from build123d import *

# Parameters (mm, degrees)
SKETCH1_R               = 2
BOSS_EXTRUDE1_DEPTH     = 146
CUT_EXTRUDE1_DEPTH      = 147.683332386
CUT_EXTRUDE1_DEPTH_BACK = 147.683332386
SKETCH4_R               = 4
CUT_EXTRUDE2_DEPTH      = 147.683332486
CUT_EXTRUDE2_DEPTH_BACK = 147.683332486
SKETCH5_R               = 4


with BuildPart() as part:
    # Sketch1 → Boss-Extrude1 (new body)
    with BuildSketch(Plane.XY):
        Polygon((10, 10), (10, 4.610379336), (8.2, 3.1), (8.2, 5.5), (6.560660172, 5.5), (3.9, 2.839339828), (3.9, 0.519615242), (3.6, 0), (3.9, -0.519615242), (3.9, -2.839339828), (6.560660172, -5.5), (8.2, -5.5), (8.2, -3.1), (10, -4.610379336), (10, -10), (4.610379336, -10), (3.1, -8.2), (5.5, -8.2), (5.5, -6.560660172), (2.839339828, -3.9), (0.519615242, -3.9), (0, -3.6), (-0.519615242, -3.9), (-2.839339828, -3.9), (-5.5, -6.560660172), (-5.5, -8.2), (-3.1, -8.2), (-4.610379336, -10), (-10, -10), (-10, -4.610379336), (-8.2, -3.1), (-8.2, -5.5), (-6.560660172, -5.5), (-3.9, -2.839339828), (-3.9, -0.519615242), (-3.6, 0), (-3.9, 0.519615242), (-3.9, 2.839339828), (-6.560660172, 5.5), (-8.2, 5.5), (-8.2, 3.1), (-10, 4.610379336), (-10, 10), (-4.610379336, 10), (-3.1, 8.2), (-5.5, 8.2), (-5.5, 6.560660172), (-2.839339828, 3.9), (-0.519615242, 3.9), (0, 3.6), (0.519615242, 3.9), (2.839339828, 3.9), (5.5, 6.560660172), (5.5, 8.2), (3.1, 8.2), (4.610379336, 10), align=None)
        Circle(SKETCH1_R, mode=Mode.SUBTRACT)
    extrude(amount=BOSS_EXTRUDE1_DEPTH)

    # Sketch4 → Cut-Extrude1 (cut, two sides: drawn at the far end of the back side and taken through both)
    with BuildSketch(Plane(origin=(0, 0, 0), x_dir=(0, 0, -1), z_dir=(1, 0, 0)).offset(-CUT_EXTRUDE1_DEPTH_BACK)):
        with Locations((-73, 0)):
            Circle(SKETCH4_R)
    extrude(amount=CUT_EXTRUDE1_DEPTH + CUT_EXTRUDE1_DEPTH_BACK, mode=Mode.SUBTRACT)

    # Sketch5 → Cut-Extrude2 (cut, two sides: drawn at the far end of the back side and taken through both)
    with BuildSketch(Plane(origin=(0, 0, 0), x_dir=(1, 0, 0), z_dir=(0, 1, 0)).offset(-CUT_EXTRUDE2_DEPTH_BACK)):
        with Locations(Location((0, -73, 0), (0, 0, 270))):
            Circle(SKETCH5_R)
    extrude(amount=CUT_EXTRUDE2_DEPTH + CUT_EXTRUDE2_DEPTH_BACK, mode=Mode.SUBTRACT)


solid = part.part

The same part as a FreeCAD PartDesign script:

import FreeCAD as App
import Part
import Sketcher
Q = App.Units.Quantity

doc = App.newDocument("Part")
params = doc.addObject("Spreadsheet::Sheet", "Params")
for row, (alias, value) in enumerate([
    ("sketch1_diameter", "4 mm"),
    ("sketch1_width", "2.4 mm"),
    ("sketch1_length", "0.6 mm"),
    ("pad1_length", "146 mm"),
    ("sketch2_diameter", "8 mm"),
    ("sketch3_diameter", "8 mm"),
], start=1):
    params.set(f"A{row}", alias)
    params.set(f"B{row}", "=" + value)
    params.setAlias(f"B{row}", alias)

body = doc.addObject("PartDesign::Body", "Body")

# Sketch on XY plane
sketch1 = doc.addObject("Sketcher::SketchObject", "Sketch")
body.addObject(sketch1)
sketch1.AttachmentSupport = (doc.XY_Plane, [""])
sketch1.MapMode = "FlatFace"
sketch1.addGeometry(Part.LineSegment(App.Vector(10, 4.6, 0), App.Vector(10, 10, 0)), False)
sketch1.addGeometry(Part.LineSegment(App.Vector(10, 10, 0), App.Vector(4.6, 10, 0)), False)
sketch1.addGeometry(Part.LineSegment(App.Vector(4.6, 10, 0), App.Vector(3.1, 8.2, 0)), False)
sketch1.addGeometry(Part.LineSegment(App.Vector(3.1, 8.2, 0), App.Vector(5.5, 8.2, 0)), False)
sketch1.addGeometry(Part.LineSegment(App.Vector(5.5, 8.2, 0), App.Vector(5.5, 6.6, 0)), False)
sketch1.addGeometry(Part.LineSegment(App.Vector(5.5, 6.6, 0), App.Vector(2.8, 3.9, 0)), False)
sketch1.addGeometry(Part.LineSegment(App.Vector(2.8, 3.9, 0), App.Vector(0.5, 3.9, 0)), False)
sketch1.addGeometry(Part.LineSegment(App.Vector(0.5, 3.9, 0), App.Vector(0, 3.6, 0)), False)
sketch1.addGeometry(Part.LineSegment(App.Vector(0, 3.6, 0), App.Vector(-0.5, 3.9, 0)), False)
sketch1.addGeometry(Part.LineSegment(App.Vector(-0.5, 3.9, 0), App.Vector(-2.8, 3.9, 0)), False)
sketch1.addGeometry(Part.LineSegment(App.Vector(-2.8, 3.9, 0), App.Vector(-5.5, 6.6, 0)), False)
sketch1.addGeometry(Part.LineSegment(App.Vector(-5.5, 6.6, 0), App.Vector(-5.5, 8.2, 0)), False)
sketch1.addGeometry(Part.LineSegment(App.Vector(-5.5, 8.2, 0), App.Vector(-3.1, 8.2, 0)), False)
sketch1.addGeometry(Part.LineSegment(App.Vector(-3.1, 8.2, 0), App.Vector(-4.6, 10, 0)), False)
sketch1.addGeometry(Part.LineSegment(App.Vector(-4.6, 10, 0), App.Vector(-10, 10, 0)), False)
sketch1.addGeometry(Part.LineSegment(App.Vector(-10, 10, 0), App.Vector(-10, 4.6, 0)), False)
sketch1.addGeometry(Part.LineSegment(App.Vector(-10, 4.6, 0), App.Vector(-8.2, 3.1, 0)), False)
sketch1.addGeometry(Part.LineSegment(App.Vector(-8.2, 3.1, 0), App.Vector(-8.2, 5.5, 0)), False)
sketch1.addGeometry(Part.LineSegment(App.Vector(-8.2, 5.5, 0), App.Vector(-6.6, 5.5, 0)), False)
sketch1.addGeometry(Part.LineSegment(App.Vector(-6.6, 5.5, 0), App.Vector(-3.9, 2.8, 0)), False)
sketch1.addGeometry(Part.LineSegment(App.Vector(-3.9, 2.8, 0), App.Vector(-3.9, 0.5, 0)), False)
sketch1.addGeometry(Part.LineSegment(App.Vector(-3.9, 0.5, 0), App.Vector(-3.6, 0, 0)), False)
sketch1.addGeometry(Part.LineSegment(App.Vector(-3.6, 0, 0), App.Vector(-3.9, -0.5, 0)), False)
sketch1.addGeometry(Part.LineSegment(App.Vector(-3.9, -0.5, 0), App.Vector(-3.9, -2.8, 0)), False)
sketch1.addGeometry(Part.LineSegment(App.Vector(-3.9, -2.8, 0), App.Vector(-6.6, -5.5, 0)), False)
sketch1.addGeometry(Part.LineSegment(App.Vector(-6.6, -5.5, 0), App.Vector(-8.2, -5.5, 0)), False)
sketch1.addGeometry(Part.LineSegment(App.Vector(-8.2, -5.5, 0), App.Vector(-8.2, -3.1, 0)), False)
sketch1.addGeometry(Part.LineSegment(App.Vector(-8.2, -3.1, 0), App.Vector(-10, -4.6, 0)), False)
sketch1.addGeometry(Part.LineSegment(App.Vector(-10, -4.6, 0), App.Vector(-10, -10, 0)), False)
sketch1.addGeometry(Part.LineSegment(App.Vector(-10, -10, 0), App.Vector(-4.6, -10, 0)), False)
sketch1.addGeometry(Part.LineSegment(App.Vector(-4.6, -10, 0), App.Vector(-3.1, -8.2, 0)), False)
sketch1.addGeometry(Part.LineSegment(App.Vector(-3.1, -8.2, 0), App.Vector(-5.5, -8.2, 0)), False)
sketch1.addGeometry(Part.LineSegment(App.Vector(-5.5, -8.2, 0), App.Vector(-5.5, -6.6, 0)), False)
sketch1.addGeometry(Part.LineSegment(App.Vector(-5.5, -6.6, 0), App.Vector(-2.8, -3.9, 0)), False)
sketch1.addGeometry(Part.LineSegment(App.Vector(-2.8, -3.9, 0), App.Vector(-0.5, -3.9, 0)), False)
sketch1.addGeometry(Part.LineSegment(App.Vector(-0.5, -3.9, 0), App.Vector(0, -3.6, 0)), False)
sketch1.addGeometry(Part.LineSegment(App.Vector(0, -3.6, 0), App.Vector(0.5, -3.9, 0)), False)
sketch1.addGeometry(Part.LineSegment(App.Vector(0.5, -3.9, 0), App.Vector(2.8, -3.9, 0)), False)
sketch1.addGeometry(Part.LineSegment(App.Vector(2.8, -3.9, 0), App.Vector(5.5, -6.6, 0)), False)
sketch1.addGeometry(Part.LineSegment(App.Vector(5.5, -6.6, 0), App.Vector(5.5, -8.2, 0)), False)
sketch1.addGeometry(Part.LineSegment(App.Vector(5.5, -8.2, 0), App.Vector(3.1, -8.2, 0)), False)
sketch1.addGeometry(Part.LineSegment(App.Vector(3.1, -8.2, 0), App.Vector(4.6, -10, 0)), False)
sketch1.addGeometry(Part.LineSegment(App.Vector(4.6, -10, 0), App.Vector(10, -10, 0)), False)
sketch1.addGeometry(Part.LineSegment(App.Vector(10, -10, 0), App.Vector(10, -4.6, 0)), False)
sketch1.addGeometry(Part.LineSegment(App.Vector(10, -4.6, 0), App.Vector(8.2, -3.1, 0)), False)
sketch1.addGeometry(Part.LineSegment(App.Vector(8.2, -3.1, 0), App.Vector(8.2, -5.5, 0)), False)
sketch1.addGeometry(Part.LineSegment(App.Vector(8.2, -5.5, 0), App.Vector(6.6, -5.5, 0)), False)
sketch1.addGeometry(Part.LineSegment(App.Vector(6.6, -5.5, 0), App.Vector(3.9, -2.8, 0)), False)
sketch1.addGeometry(Part.LineSegment(App.Vector(3.9, -2.8, 0), App.Vector(3.9, -0.5, 0)), False)
sketch1.addGeometry(Part.LineSegment(App.Vector(3.9, -0.5, 0), App.Vector(3.6, 0, 0)), False)
sketch1.addGeometry(Part.LineSegment(App.Vector(3.6, 0, 0), App.Vector(3.9, 0.5, 0)), False)
sketch1.addGeometry(Part.LineSegment(App.Vector(3.9, 0.5, 0), App.Vector(3.9, 2.8, 0)), False)
sketch1.addGeometry(Part.LineSegment(App.Vector(3.9, 2.8, 0), App.Vector(6.6, 5.5, 0)), False)
sketch1.addGeometry(Part.LineSegment(App.Vector(6.6, 5.5, 0), App.Vector(8.2, 5.5, 0)), False)
sketch1.addGeometry(Part.LineSegment(App.Vector(8.2, 5.5, 0), App.Vector(8.2, 3.1, 0)), False)
sketch1.addGeometry(Part.LineSegment(App.Vector(8.2, 3.1, 0), App.Vector(10, 4.6, 0)), False)
sketch1.addGeometry(Part.Circle(App.Vector(0, 0, 0), App.Vector(0, 0, 1), 2), False)
sketch1.addConstraint(Sketcher.Constraint("Coincident", 0, 2, 1, 1))
sketch1.addConstraint(Sketcher.Constraint("Coincident", 1, 2, 2, 1))
sketch1.addConstraint(Sketcher.Constraint("Coincident", 2, 2, 3, 1))
sketch1.addConstraint(Sketcher.Constraint("Coincident", 3, 2, 4, 1))
sketch1.addConstraint(Sketcher.Constraint("Coincident", 4, 2, 5, 1))
sketch1.addConstraint(Sketcher.Constraint("Coincident", 5, 2, 6, 1))
sketch1.addConstraint(Sketcher.Constraint("Coincident", 6, 2, 7, 1))
sketch1.addConstraint(Sketcher.Constraint("Coincident", 7, 2, 8, 1))
sketch1.addConstraint(Sketcher.Constraint("Coincident", 8, 2, 9, 1))
sketch1.addConstraint(Sketcher.Constraint("Coincident", 9, 2, 10, 1))
sketch1.addConstraint(Sketcher.Constraint("Coincident", 10, 2, 11, 1))
sketch1.addConstraint(Sketcher.Constraint("Coincident", 11, 2, 12, 1))
sketch1.addConstraint(Sketcher.Constraint("Coincident", 12, 2, 13, 1))
sketch1.addConstraint(Sketcher.Constraint("Coincident", 13, 2, 14, 1))
sketch1.addConstraint(Sketcher.Constraint("Coincident", 14, 2, 15, 1))
sketch1.addConstraint(Sketcher.Constraint("Coincident", 15, 2, 16, 1))
sketch1.addConstraint(Sketcher.Constraint("Coincident", 16, 2, 17, 1))
sketch1.addConstraint(Sketcher.Constraint("Coincident", 17, 2, 18, 1))
sketch1.addConstraint(Sketcher.Constraint("Coincident", 18, 2, 19, 1))
sketch1.addConstraint(Sketcher.Constraint("Coincident", 19, 2, 20, 1))
sketch1.addConstraint(Sketcher.Constraint("Coincident", 20, 2, 21, 1))
sketch1.addConstraint(Sketcher.Constraint("Coincident", 21, 2, 22, 1))
sketch1.addConstraint(Sketcher.Constraint("Coincident", 22, 2, 23, 1))
sketch1.addConstraint(Sketcher.Constraint("Coincident", 23, 2, 24, 1))
sketch1.addConstraint(Sketcher.Constraint("Coincident", 24, 2, 25, 1))
sketch1.addConstraint(Sketcher.Constraint("Coincident", 25, 2, 26, 1))
sketch1.addConstraint(Sketcher.Constraint("Coincident", 26, 2, 27, 1))
sketch1.addConstraint(Sketcher.Constraint("Coincident", 27, 2, 28, 1))
sketch1.addConstraint(Sketcher.Constraint("Coincident", 28, 2, 29, 1))
sketch1.addConstraint(Sketcher.Constraint("Coincident", 29, 2, 30, 1))
sketch1.addConstraint(Sketcher.Constraint("Coincident", 30, 2, 31, 1))
sketch1.addConstraint(Sketcher.Constraint("Coincident", 31, 2, 32, 1))
sketch1.addConstraint(Sketcher.Constraint("Coincident", 32, 2, 33, 1))
sketch1.addConstraint(Sketcher.Constraint("Coincident", 33, 2, 34, 1))
sketch1.addConstraint(Sketcher.Constraint("Coincident", 34, 2, 35, 1))
sketch1.addConstraint(Sketcher.Constraint("Coincident", 35, 2, 36, 1))
sketch1.addConstraint(Sketcher.Constraint("Coincident", 36, 2, 37, 1))
sketch1.addConstraint(Sketcher.Constraint("Coincident", 37, 2, 38, 1))
sketch1.addConstraint(Sketcher.Constraint("Coincident", 38, 2, 39, 1))
sketch1.addConstraint(Sketcher.Constraint("Coincident", 39, 2, 40, 1))
sketch1.addConstraint(Sketcher.Constraint("Coincident", 40, 2, 41, 1))
sketch1.addConstraint(Sketcher.Constraint("Coincident", 41, 2, 42, 1))
sketch1.addConstraint(Sketcher.Constraint("Coincident", 42, 2, 43, 1))
sketch1.addConstraint(Sketcher.Constraint("Coincident", 43, 2, 44, 1))
sketch1.addConstraint(Sketcher.Constraint("Coincident", 44, 2, 45, 1))
sketch1.addConstraint(Sketcher.Constraint("Coincident", 45, 2, 46, 1))
sketch1.addConstraint(Sketcher.Constraint("Coincident", 46, 2, 47, 1))
sketch1.addConstraint(Sketcher.Constraint("Coincident", 47, 2, 48, 1))
sketch1.addConstraint(Sketcher.Constraint("Coincident", 48, 2, 49, 1))
sketch1.addConstraint(Sketcher.Constraint("Coincident", 49, 2, 50, 1))
sketch1.addConstraint(Sketcher.Constraint("Coincident", 50, 2, 51, 1))
sketch1.addConstraint(Sketcher.Constraint("Coincident", 51, 2, 52, 1))
sketch1.addConstraint(Sketcher.Constraint("Coincident", 52, 2, 53, 1))
sketch1.addConstraint(Sketcher.Constraint("Coincident", 53, 2, 54, 1))
sketch1.addConstraint(Sketcher.Constraint("Coincident", 54, 2, 55, 1))
sketch1.addConstraint(Sketcher.Constraint("Coincident", 55, 2, 0, 1))
sketch1.addConstraint(Sketcher.Constraint("Vertical", 0))
sketch1.addConstraint(Sketcher.Constraint("Horizontal", 1))
sketch1.addConstraint(Sketcher.Constraint("Horizontal", 3))
sketch1.addConstraint(Sketcher.Constraint("Vertical", 4))
sketch1.addConstraint(Sketcher.Constraint("Horizontal", 6))
sketch1.addConstraint(Sketcher.Constraint("Horizontal", 9))
sketch1.addConstraint(Sketcher.Constraint("Vertical", 11))
sketch1.addConstraint(Sketcher.Constraint("Horizontal", 12))
sketch1.addConstraint(Sketcher.Constraint("Horizontal", 14))
sketch1.addConstraint(Sketcher.Constraint("Vertical", 15))
sketch1.addConstraint(Sketcher.Constraint("Vertical", 17))
sketch1.addConstraint(Sketcher.Constraint("Horizontal", 18))
sketch1.addConstraint(Sketcher.Constraint("Vertical", 20))
sketch1.addConstraint(Sketcher.Constraint("Vertical", 23))
sketch1.addConstraint(Sketcher.Constraint("Horizontal", 25))
sketch1.addConstraint(Sketcher.Constraint("Vertical", 26))
sketch1.addConstraint(Sketcher.Constraint("Vertical", 28))
sketch1.addConstraint(Sketcher.Constraint("Horizontal", 29))
sketch1.addConstraint(Sketcher.Constraint("Horizontal", 31))
sketch1.addConstraint(Sketcher.Constraint("Vertical", 32))
sketch1.addConstraint(Sketcher.Constraint("Horizontal", 34))
sketch1.addConstraint(Sketcher.Constraint("Horizontal", 37))
sketch1.addConstraint(Sketcher.Constraint("Vertical", 39))
sketch1.addConstraint(Sketcher.Constraint("Horizontal", 40))
sketch1.addConstraint(Sketcher.Constraint("Horizontal", 42))
sketch1.addConstraint(Sketcher.Constraint("Vertical", 43))
sketch1.addConstraint(Sketcher.Constraint("Vertical", 45))
sketch1.addConstraint(Sketcher.Constraint("Horizontal", 46))
sketch1.addConstraint(Sketcher.Constraint("Vertical", 48))
sketch1.addConstraint(Sketcher.Constraint("Vertical", 51))
sketch1.addConstraint(Sketcher.Constraint("Horizontal", 53))
sketch1.addConstraint(Sketcher.Constraint("Vertical", 54))
sketch1.addConstraint(Sketcher.Constraint("Coincident", 56, 3, -1, 1))
sketch1.addConstraint(Sketcher.Constraint("Symmetric", 0, 2, 28, 2, -1, 1))
sketch1.addConstraint(Sketcher.Constraint("Symmetric", 2, 2, 30, 2, -1, 1))
sketch1.addConstraint(Sketcher.Constraint("Symmetric", 4, 2, 32, 2, -1, 1))
sketch1.addConstraint(Sketcher.Constraint("Symmetric", 5, 2, 33, 2, -1, 1))
sketch1.addConstraint(Sketcher.Constraint("Symmetric", 7, 2, 35, 2, -1, 1))
sketch1.addConstraint(Sketcher.Constraint("Symmetric", 8, 2, 36, 2, -1, 1))
sketch1.addConstraint(Sketcher.Constraint("Symmetric", 10, 2, 38, 2, -1, 1))
sketch1.addConstraint(Sketcher.Constraint("Symmetric", 12, 2, 40, 2, -1, 1))
sketch1.addConstraint(Sketcher.Constraint("Symmetric", 13, 2, 41, 2, -1, 1))
sketch1.addConstraint(Sketcher.Constraint("Symmetric", 15, 2, 43, 2, -1, 1))
sketch1.addConstraint(Sketcher.Constraint("Symmetric", 16, 2, 44, 2, -1, 1))
sketch1.addConstraint(Sketcher.Constraint("Symmetric", 18, 2, 46, 2, -1, 1))
sketch1.addConstraint(Sketcher.Constraint("Symmetric", 19, 2, 47, 2, -1, 1))
sketch1.addConstraint(Sketcher.Constraint("Symmetric", 21, 2, 49, 2, -1, 1))
sketch1.addConstraint(Sketcher.Constraint("Symmetric", 22, 2, 50, 2, -1, 1))
sketch1.addConstraint(Sketcher.Constraint("Symmetric", 24, 2, 52, 2, -1, 1))
sketch1.addConstraint(Sketcher.Constraint("Symmetric", 26, 2, 54, 2, -1, 1))
sketch1.addConstraint(Sketcher.Constraint("Symmetric", 6, 2, 8, 2, -2))
sketch1.addConstraint(Sketcher.Constraint("Symmetric", 4, 2, 10, 2, -2))
sketch1.addConstraint(Sketcher.Constraint("Symmetric", 2, 2, 12, 2, -2))
sketch1.addConstraint(Sketcher.Constraint("Symmetric", 1, 2, 13, 2, -2))
sketch1.addConstraint(Sketcher.Constraint("Symmetric", 27, 2, 43, 2, -2))
sketch1.addConstraint(Sketcher.Constraint("Symmetric", 26, 2, 44, 2, -2))
sketch1.addConstraint(Sketcher.Constraint("Symmetric", 24, 2, 46, 2, -2))
sketch1.addConstraint(Sketcher.Constraint("Symmetric", 23, 2, 47, 2, -2))
sketch1.addConstraint(Sketcher.Constraint("PointOnObject", 7, 2, -2))
sketch1.addConstraint(Sketcher.Constraint("PointOnObject", 21, 2, -1))
sketch1.addConstraint(Sketcher.Constraint("Perpendicular", 5, 10))
sketch1.addConstraint(Sketcher.Constraint("Perpendicular", 2, 16))
sketch1.addConstraint(Sketcher.Constraint("Parallel", 10, 19))
sketch1.addConstraint(Sketcher.Constraint("Perpendicular", 7, 21))
sketch1.addConstraint(Sketcher.Constraint("Perpendicular", 8, 22))
sketch1.addConstraint(Sketcher.Constraint("Perpendicular", 19, 24))
sketch1.addConstraint(Sketcher.Constraint("Perpendicular", 16, 30))
sketch1.addConstraint(Sketcher.Constraint("Perpendicular", 21, 35))
sketch1.addConstraint(Sketcher.Constraint("Perpendicular", 33, 38))
sketch1.addConstraint(Sketcher.Constraint("Perpendicular", 35, 49))
sketch1.addConstraint(Sketcher.Constraint("Perpendicular", 47, 52))
sketch1.addConstraint(Sketcher.Constraint("Perpendicular", 41, 55))
sketch1.addConstraint(Sketcher.Constraint("Equal", 42, 0))
sketch1.addConstraint(Sketcher.Constraint("Equal", 53, 4))
sketch1.addConstraint(Sketcher.Constraint("Equal", 40, 17))
sketch1.addConstraint(Sketcher.Constraint("Equal", 37, 20))
sketch1.addConstraint(Sketcher.Constraint("Equal", 13, 16))
sketch1.addConstraint(Sketcher.Constraint("Equal", 10, 19))
sketch1.addConstraint(Sketcher.Constraint("Equal", 8, 21))
sketch1.addConstraint(Sketcher.Constraint("Diameter", 56, Q("4 mm")))
sketch1.addConstraint(Sketcher.Constraint("Angle", 2, Q("-130 deg")))
sketch1.addConstraint(Sketcher.Constraint("Angle", 7, Q("-150 deg")))
sketch1.addConstraint(Sketcher.Constraint("DistanceX", 3, 1, 3, 2, Q("2.4 mm")))
sketch1.addConstraint(Sketcher.Constraint("DistanceX", -1, 1, 0, 2, Q("10 mm")))
sketch1.addConstraint(Sketcher.Constraint("Distance", 7, Q("0.6 mm")))
sketch1.addConstraint(Sketcher.Constraint("DistanceX", -1, 1, 2, 2, Q("3.1 mm")))
sketch1.addConstraint(Sketcher.Constraint("DistanceY", -1, 1, 2, 2, Q("8.2 mm")))
sketch1.addConstraint(Sketcher.Constraint("DistanceY", -1, 1, 5, 2, Q("3.9 mm")))
sketch1.addConstraint(Sketcher.Constraint("DistanceX", 18, 1, 18, 2, Q("1.63934 mm")))
sketch1.setExpression("Constraints[135]", "Params.sketch1_diameter")
sketch1.setExpression("Constraints[138]", "Params.sketch1_width")
sketch1.setExpression("Constraints[140]", "Params.sketch1_length")
pad1 = doc.addObject("PartDesign::Pad", "Pad")
body.addObject(pad1)
pad1.Profile = sketch1
pad1.setExpression("Length", "Params.pad1_length")

# Sketch on YZ plane
sketch2 = doc.addObject("Sketcher::SketchObject", "Sketch001")
body.addObject(sketch2)
sketch2.AttachmentSupport = (doc.YZ_Plane, [""])
sketch2.MapMode = "FlatFace"
sketch2.addGeometry(Part.Circle(App.Vector(0, 73, 0), App.Vector(0, 0, 1), 4), False)
sketch2.addConstraint(Sketcher.Constraint("PointOnObject", 0, 3, -2))
sketch2.addConstraint(Sketcher.Constraint("Diameter", 0, Q("8 mm")))
sketch2.addConstraint(Sketcher.Constraint("DistanceY", -1, 1, 0, 3, Q("73 mm")))
sketch2.setExpression("Constraints[1]", "Params.sketch2_diameter")
pocket1 = doc.addObject("PartDesign::Pocket", "Pocket")
body.addObject(pocket1)
pocket1.Profile = sketch2
pocket1.Type = "ThroughAll"
pocket1.Midplane = True

# Sketch on XZ plane
sketch3 = doc.addObject("Sketcher::SketchObject", "Sketch002")
body.addObject(sketch3)
sketch3.AttachmentSupport = (doc.XZ_Plane, [""])
sketch3.MapMode = "FlatFace"
sketch3.addGeometry(Part.Circle(App.Vector(0, 73, 0), App.Vector(0, 0, 1), 4), False)
sketch3.addConstraint(Sketcher.Constraint("PointOnObject", 0, 3, -2))
sketch3.addConstraint(Sketcher.Constraint("Diameter", 0, Q("8 mm")))
sketch3.addConstraint(Sketcher.Constraint("DistanceY", -1, 1, 0, 3, Q("73 mm")))
sketch3.setExpression("Constraints[1]", "Params.sketch3_diameter")
pocket2 = doc.addObject("PartDesign::Pocket", "Pocket001")
body.addObject(pocket2)
pocket2.Profile = sketch3
pocket2.Type = "ThroughAll"
pocket2.Midplane = True

doc.recompute()
